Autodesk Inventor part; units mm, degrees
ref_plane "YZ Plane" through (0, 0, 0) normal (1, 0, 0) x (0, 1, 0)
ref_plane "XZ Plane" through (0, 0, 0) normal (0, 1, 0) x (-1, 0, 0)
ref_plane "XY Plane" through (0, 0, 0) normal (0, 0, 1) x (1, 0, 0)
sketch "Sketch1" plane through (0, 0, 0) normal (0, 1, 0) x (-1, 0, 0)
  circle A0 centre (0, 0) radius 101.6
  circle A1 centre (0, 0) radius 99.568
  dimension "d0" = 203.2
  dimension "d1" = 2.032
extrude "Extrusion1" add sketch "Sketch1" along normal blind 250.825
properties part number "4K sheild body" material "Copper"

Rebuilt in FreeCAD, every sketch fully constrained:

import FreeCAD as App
import Part
import Sketcher
from FreeCAD import Vector
Q = App.Units.Quantity

doc = App.newDocument("Part")
body = doc.addObject("PartDesign::Body", "Body")

# Sketch on XZ plane
sketch1 = body.newObject("Sketcher::SketchObject", "Sketch")
sketch1.AttachmentSupport = (doc.getObject("XZ_Plane"), [""])
sketch1.MapMode = "FlatFace"
sketch1.addGeometry(Part.Circle(Vector(0, 0, 0), Vector(0, 0, 1), 102), False)
sketch1.addGeometry(Part.Circle(Vector(0, 0, 0), Vector(0, 0, 1), 100), False)
sketch1.addConstraint(Sketcher.Constraint("Coincident", 0, 3, -1, 1))
sketch1.addConstraint(Sketcher.Constraint("Coincident", 1, 3, -1, 1))
sketch1.addConstraint(Sketcher.Constraint("Diameter", 0, Q("8 in")))
sketch1.addConstraint(Sketcher.Constraint("Diameter", 1, Q("7.84 in")))
pad1 = body.newObject("PartDesign::Pad", "Pad")
pad1.Profile = sketch1
pad1.Length = Q("9.875 in")
pad1.Reversed = True

doc.recompute()
